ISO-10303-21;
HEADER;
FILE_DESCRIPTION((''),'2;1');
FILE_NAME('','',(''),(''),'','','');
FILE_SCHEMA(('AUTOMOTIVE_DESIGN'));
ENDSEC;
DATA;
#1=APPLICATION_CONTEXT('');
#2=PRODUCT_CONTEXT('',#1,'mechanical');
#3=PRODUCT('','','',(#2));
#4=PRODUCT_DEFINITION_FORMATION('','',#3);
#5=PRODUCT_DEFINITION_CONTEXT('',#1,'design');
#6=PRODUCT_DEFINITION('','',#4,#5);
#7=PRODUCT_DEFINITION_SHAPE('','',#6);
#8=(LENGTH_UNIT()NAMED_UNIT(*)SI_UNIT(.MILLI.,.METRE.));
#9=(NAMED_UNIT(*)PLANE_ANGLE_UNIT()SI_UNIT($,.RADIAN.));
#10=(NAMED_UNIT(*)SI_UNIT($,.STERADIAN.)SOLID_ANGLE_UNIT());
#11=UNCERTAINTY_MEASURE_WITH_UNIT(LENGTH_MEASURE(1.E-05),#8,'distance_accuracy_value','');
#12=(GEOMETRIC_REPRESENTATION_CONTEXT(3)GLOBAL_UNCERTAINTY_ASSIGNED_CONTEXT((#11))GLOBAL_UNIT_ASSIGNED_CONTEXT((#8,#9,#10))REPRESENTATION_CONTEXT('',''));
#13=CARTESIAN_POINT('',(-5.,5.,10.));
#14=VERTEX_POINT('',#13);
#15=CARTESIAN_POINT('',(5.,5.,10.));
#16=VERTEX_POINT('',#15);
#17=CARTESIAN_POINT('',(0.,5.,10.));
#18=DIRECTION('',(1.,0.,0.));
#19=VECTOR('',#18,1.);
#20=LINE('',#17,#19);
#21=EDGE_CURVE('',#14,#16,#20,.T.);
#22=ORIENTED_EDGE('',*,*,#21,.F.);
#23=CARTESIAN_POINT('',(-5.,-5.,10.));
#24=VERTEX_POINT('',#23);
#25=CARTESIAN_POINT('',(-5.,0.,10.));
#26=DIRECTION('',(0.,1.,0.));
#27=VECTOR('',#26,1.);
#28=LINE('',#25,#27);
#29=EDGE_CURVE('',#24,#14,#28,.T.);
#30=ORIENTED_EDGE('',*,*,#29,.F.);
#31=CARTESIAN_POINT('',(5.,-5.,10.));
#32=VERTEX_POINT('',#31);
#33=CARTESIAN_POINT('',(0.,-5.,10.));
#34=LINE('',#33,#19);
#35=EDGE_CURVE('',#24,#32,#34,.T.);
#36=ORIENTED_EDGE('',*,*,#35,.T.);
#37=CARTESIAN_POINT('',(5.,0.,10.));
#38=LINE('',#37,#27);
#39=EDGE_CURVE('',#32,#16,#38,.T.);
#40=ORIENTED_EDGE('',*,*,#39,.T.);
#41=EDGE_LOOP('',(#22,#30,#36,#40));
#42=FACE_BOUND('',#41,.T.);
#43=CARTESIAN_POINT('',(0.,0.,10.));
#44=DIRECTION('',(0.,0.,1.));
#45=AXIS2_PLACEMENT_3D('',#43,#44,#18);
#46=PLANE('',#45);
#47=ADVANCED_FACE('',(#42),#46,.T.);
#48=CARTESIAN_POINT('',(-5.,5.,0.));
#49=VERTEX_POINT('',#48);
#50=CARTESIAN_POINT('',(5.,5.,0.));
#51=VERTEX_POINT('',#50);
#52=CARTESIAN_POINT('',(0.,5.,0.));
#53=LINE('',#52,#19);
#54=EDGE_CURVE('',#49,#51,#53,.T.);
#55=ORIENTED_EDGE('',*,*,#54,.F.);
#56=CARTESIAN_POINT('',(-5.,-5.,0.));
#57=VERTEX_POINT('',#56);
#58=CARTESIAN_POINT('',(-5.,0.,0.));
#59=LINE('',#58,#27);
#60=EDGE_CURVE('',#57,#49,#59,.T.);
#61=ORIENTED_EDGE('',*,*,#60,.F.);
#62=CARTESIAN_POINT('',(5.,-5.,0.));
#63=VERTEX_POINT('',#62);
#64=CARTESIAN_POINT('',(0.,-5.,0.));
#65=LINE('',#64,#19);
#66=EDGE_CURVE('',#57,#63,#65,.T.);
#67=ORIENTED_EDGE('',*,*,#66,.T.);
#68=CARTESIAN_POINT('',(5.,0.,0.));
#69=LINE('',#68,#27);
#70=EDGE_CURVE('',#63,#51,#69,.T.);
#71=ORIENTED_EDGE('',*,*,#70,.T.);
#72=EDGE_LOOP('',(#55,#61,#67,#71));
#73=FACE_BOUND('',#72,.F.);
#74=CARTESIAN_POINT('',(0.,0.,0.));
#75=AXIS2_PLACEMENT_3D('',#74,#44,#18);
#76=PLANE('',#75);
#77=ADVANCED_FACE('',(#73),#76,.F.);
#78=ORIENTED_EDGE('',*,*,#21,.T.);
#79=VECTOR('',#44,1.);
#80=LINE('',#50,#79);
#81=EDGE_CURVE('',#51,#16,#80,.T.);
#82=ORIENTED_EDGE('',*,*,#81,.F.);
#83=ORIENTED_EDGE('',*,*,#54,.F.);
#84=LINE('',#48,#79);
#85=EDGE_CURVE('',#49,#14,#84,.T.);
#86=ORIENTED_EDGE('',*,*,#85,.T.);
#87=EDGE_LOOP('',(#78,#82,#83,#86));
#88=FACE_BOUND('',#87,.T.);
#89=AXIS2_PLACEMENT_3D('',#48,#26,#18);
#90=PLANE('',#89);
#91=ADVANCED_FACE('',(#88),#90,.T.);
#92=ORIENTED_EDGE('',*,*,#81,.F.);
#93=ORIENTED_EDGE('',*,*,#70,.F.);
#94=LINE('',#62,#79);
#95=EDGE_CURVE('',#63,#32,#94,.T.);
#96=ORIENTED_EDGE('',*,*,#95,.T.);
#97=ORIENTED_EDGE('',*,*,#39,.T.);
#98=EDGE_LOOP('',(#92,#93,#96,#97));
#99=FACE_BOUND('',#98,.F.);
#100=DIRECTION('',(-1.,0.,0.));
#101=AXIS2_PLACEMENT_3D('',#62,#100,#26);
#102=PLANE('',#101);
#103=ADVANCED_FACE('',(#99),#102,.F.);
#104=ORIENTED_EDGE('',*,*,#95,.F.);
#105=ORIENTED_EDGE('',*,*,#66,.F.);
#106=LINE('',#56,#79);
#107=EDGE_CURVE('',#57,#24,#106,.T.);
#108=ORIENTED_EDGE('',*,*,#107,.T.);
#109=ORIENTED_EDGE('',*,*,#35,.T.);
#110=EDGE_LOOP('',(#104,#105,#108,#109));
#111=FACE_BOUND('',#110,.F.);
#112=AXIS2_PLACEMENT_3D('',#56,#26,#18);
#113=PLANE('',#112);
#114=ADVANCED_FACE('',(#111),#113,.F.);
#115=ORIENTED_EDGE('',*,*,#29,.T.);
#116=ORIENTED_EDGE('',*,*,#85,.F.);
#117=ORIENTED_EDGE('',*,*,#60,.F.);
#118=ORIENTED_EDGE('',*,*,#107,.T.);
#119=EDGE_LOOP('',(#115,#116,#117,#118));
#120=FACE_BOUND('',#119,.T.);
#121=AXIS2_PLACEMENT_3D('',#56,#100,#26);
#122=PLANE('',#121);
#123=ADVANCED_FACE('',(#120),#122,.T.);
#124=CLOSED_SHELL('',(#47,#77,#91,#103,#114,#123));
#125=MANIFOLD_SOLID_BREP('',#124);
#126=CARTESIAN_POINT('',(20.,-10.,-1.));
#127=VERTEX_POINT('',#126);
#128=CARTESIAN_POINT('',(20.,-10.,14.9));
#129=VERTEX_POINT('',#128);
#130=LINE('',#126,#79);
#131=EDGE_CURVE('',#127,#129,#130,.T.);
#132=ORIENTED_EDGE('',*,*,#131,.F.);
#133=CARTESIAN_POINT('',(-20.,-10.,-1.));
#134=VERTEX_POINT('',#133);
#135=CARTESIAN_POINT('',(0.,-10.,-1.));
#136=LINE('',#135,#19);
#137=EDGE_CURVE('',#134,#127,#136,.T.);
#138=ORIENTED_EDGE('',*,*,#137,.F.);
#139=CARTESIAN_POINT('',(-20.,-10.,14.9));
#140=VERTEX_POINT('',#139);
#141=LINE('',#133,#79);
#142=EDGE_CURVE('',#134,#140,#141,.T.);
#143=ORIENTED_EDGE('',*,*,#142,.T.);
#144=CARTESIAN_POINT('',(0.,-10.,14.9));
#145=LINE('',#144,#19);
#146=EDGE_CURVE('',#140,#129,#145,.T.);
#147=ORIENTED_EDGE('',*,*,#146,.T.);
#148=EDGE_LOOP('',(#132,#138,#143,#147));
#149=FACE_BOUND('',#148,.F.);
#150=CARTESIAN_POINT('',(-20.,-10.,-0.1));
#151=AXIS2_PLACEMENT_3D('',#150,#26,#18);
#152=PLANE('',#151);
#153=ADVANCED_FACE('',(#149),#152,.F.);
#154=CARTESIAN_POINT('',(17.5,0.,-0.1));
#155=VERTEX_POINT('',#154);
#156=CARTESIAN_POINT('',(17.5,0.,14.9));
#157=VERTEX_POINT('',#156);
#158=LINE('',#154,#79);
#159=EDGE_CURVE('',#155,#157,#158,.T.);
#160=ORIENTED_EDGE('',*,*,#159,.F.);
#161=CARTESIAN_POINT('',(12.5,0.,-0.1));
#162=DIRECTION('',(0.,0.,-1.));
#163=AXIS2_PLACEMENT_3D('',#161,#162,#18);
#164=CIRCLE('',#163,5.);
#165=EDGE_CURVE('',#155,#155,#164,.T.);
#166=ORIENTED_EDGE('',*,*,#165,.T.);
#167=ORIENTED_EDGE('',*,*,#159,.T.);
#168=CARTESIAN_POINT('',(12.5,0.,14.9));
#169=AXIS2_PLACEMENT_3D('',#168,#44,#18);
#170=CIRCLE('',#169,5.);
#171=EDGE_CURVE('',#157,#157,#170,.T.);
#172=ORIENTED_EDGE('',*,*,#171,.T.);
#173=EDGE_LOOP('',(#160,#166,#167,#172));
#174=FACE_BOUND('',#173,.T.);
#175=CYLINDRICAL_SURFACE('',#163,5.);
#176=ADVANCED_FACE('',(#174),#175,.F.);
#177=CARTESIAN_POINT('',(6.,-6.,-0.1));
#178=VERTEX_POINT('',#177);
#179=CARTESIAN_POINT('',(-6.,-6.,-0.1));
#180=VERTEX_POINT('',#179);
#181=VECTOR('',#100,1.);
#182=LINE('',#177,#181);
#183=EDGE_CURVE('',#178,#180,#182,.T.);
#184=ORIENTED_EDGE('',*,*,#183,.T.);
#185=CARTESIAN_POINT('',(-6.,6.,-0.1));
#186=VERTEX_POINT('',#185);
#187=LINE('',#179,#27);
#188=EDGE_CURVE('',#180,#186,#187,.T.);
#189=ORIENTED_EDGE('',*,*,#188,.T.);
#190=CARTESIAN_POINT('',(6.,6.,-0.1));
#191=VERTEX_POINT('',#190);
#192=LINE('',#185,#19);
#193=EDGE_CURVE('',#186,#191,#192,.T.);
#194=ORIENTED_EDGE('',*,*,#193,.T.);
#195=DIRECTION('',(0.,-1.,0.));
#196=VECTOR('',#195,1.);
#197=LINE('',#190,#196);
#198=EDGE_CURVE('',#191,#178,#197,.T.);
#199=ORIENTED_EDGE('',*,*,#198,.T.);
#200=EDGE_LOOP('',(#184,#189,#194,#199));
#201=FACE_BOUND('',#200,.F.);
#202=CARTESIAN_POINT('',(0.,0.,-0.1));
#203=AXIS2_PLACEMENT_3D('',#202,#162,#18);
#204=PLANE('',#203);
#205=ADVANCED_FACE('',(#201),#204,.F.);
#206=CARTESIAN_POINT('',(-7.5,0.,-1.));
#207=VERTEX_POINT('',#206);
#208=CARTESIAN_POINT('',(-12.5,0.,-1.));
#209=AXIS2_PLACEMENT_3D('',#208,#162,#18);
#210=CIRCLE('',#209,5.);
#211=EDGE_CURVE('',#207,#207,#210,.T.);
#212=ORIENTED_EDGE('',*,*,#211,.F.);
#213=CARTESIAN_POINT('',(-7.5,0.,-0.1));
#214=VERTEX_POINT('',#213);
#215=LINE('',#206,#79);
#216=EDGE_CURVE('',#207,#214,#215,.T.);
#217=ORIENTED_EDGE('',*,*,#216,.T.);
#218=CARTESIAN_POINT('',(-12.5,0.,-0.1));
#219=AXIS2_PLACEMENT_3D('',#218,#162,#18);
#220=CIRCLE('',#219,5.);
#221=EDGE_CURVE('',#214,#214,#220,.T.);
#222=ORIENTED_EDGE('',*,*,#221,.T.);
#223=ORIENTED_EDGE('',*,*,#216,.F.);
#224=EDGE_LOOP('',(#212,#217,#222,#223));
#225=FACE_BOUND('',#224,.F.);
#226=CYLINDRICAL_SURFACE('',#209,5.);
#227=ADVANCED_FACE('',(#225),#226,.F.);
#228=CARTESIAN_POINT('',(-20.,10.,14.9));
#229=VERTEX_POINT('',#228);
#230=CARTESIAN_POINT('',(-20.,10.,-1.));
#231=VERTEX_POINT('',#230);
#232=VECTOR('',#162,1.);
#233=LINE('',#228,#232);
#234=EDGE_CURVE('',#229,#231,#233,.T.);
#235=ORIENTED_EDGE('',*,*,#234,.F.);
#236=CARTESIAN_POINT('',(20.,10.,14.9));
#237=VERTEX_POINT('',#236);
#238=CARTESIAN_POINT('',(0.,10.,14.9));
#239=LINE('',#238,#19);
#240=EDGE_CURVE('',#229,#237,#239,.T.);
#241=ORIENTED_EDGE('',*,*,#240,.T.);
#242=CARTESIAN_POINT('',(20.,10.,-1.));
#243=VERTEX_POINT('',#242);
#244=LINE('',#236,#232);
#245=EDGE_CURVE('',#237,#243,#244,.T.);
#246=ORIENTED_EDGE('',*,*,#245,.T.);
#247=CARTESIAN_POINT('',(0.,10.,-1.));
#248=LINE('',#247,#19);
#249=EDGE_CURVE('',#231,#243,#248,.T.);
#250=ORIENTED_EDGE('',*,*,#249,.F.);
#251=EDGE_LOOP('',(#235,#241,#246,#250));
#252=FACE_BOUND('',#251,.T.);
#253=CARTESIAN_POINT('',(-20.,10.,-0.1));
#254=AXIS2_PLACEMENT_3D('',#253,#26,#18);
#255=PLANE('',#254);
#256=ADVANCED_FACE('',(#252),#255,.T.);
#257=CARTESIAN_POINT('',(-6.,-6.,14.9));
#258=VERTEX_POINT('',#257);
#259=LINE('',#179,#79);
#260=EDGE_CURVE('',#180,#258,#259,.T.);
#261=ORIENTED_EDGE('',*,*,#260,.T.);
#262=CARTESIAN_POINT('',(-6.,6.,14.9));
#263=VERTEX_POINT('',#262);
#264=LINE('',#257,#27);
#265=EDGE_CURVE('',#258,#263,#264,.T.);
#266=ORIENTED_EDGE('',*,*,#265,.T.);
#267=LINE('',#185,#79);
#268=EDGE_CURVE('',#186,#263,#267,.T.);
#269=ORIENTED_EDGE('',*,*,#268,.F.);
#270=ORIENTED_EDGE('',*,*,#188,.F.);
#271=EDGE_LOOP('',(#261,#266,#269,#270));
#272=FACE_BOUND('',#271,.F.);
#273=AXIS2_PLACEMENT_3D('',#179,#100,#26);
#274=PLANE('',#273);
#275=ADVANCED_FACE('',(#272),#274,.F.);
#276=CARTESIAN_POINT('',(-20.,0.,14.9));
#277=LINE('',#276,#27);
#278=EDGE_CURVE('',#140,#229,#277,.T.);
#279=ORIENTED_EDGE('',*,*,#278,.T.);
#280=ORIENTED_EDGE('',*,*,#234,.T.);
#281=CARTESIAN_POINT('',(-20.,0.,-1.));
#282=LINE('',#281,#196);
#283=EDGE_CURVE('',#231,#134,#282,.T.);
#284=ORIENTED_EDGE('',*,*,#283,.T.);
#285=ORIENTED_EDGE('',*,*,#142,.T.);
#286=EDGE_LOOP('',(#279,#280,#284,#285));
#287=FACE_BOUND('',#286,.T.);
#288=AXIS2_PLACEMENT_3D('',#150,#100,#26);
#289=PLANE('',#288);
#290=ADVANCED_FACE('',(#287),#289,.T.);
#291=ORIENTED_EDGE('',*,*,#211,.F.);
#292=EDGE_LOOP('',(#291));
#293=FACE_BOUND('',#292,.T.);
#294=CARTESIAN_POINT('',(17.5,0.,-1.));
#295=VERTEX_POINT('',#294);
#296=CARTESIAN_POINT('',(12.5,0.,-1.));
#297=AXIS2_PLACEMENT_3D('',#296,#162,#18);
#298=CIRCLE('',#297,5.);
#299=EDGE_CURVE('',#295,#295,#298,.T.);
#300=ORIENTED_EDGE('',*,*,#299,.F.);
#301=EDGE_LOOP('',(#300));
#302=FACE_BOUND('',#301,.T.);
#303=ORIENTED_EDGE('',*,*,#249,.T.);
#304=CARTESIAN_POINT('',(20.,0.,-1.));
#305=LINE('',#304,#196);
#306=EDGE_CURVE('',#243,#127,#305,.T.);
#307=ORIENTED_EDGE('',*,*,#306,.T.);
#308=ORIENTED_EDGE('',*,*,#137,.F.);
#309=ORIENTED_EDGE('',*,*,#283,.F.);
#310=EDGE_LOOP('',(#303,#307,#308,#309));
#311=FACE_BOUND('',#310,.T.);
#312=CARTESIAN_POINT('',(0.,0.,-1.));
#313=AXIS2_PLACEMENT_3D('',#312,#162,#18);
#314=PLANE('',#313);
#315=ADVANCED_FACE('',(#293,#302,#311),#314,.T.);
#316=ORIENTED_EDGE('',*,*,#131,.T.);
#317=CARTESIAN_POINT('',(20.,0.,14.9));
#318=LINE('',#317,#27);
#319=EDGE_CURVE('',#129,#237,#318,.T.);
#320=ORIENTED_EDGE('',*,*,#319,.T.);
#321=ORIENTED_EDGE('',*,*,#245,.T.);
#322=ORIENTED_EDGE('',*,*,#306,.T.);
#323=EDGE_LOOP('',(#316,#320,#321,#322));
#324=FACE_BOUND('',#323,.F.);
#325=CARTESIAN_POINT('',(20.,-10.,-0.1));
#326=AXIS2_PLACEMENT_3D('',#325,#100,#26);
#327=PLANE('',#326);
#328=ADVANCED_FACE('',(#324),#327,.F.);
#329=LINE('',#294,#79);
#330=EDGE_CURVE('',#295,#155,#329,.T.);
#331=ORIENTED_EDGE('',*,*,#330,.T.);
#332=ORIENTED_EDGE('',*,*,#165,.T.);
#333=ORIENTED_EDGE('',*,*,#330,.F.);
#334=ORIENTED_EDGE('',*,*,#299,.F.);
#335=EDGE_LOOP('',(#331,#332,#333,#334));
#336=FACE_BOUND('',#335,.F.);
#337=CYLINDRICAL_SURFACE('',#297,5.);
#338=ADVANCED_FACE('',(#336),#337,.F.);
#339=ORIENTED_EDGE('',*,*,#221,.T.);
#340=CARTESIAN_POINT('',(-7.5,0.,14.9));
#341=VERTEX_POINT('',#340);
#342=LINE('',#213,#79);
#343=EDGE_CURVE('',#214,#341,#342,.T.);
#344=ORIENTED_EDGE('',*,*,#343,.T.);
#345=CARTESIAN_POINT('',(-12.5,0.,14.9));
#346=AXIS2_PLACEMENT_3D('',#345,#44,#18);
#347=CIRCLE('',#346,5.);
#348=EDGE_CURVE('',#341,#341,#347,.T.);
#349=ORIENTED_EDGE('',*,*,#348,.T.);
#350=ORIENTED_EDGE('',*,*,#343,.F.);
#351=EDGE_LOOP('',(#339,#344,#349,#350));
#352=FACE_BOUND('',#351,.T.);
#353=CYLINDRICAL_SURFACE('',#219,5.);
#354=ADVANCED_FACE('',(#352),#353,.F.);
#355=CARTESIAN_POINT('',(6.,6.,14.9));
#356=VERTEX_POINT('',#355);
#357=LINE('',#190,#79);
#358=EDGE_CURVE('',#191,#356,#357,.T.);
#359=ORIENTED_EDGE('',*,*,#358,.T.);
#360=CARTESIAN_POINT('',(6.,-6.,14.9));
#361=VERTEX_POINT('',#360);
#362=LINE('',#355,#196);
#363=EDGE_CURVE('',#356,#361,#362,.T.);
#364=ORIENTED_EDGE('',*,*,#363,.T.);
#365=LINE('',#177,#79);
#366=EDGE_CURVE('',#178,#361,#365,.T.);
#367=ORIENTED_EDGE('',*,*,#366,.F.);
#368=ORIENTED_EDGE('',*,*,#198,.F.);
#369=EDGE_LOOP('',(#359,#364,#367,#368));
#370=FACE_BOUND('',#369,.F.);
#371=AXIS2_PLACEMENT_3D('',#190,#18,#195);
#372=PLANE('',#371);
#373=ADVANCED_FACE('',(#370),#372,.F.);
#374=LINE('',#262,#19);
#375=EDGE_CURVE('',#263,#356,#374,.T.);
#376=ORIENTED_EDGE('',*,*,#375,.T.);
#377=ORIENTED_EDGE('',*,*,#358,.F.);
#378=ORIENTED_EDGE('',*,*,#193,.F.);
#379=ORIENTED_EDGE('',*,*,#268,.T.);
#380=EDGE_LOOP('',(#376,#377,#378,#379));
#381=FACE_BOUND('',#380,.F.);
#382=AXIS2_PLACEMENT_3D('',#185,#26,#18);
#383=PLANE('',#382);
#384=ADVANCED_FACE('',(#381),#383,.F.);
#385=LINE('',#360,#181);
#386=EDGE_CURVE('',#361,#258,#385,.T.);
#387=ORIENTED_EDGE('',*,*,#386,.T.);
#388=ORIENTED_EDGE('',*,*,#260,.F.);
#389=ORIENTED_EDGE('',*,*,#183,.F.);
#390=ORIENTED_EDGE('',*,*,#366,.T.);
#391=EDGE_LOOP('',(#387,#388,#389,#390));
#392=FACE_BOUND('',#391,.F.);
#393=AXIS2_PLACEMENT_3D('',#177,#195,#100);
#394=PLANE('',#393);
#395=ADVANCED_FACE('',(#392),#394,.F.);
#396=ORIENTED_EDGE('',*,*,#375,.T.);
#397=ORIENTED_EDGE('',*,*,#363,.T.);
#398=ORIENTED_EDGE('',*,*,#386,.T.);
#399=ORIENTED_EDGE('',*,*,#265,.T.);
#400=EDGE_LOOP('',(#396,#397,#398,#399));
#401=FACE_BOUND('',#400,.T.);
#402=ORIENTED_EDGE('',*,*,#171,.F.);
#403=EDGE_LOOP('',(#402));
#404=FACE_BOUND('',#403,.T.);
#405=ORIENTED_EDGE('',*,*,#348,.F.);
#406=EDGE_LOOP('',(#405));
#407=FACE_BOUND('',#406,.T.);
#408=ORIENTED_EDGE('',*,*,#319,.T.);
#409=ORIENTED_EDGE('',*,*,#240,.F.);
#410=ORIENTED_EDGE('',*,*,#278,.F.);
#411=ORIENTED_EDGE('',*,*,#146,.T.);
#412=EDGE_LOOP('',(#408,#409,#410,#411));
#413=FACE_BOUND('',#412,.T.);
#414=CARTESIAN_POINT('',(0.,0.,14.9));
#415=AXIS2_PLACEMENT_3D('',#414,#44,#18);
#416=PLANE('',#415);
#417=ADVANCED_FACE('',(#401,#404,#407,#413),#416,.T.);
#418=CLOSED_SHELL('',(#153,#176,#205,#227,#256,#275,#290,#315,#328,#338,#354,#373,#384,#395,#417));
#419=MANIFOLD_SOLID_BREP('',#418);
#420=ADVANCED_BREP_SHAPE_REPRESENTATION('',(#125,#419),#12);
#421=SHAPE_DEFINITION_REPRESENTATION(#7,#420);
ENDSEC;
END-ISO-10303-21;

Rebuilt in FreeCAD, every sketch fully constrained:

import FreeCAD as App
import Part
import Sketcher
from FreeCAD import Vector
Q = App.Units.Quantity


def add_polygon(sketch, points):
    """Adds a closed chain of lines whose ends are joined by coincident constraints."""
    first, n = sketch.GeometryCount, len(points)
    for a, b in zip(points, points[1:] + points[:1]):
        sketch.addGeometry(Part.LineSegment(App.Vector(*a, 0), App.Vector(*b, 0)), False)
    for i in range(n):
        sketch.addConstraint(Sketcher.Constraint("Coincident", first + i, 2, first + (i + 1) % n, 1))

doc = App.newDocument("Part")
body = doc.addObject("PartDesign::Body", "Body")

# Sketch on XY plane
sketch1 = body.newObject("Sketcher::SketchObject", "Sketch")
sketch1.AttachmentSupport = (doc.getObject("XY_Plane"), [""])
sketch1.MapMode = "FlatFace"
add_polygon(sketch1, [(-5, 5), (-5, -5), (5, -5), (5, 5)])  # lines 0-3
sketch1.addConstraint([
    Sketcher.Constraint("Vertical", 0),
    Sketcher.Constraint("Horizontal", 1),
    Sketcher.Constraint("Vertical", 2),
    Sketcher.Constraint("Horizontal", 3),
    Sketcher.Constraint("Symmetric", 0, 2, 2, 2, -1, 1),
    Sketcher.Constraint("Equal", 3, 0),
    Sketcher.Constraint("DistanceX", 1, 1, 1, 2, Q("10 mm")),
])
pad1 = body.newObject("PartDesign::Pad", "Pad")
pad1.Profile = sketch1
pad1.Length = 10
body2 = doc.addObject("PartDesign::Body", "Body001")

# Sketch on XY plane
sketch2 = body2.newObject("Sketcher::SketchObject", "Sketch001")
sketch2.AttachmentSupport = (doc.getObject("XY_Plane001"), [""])
sketch2.MapMode = "FlatFace"
sketch2.AttachmentOffset = App.Placement(Vector(0, 0, -1), App.Rotation())
add_polygon(sketch2, [(-20, -10), (-20, 10), (20, 10), (20, -10)])  # lines 0-3
sketch2.addGeometry(Part.Circle(Vector(-12, 0, 0), Vector(0, 0, 1), 5), False)  # 4
sketch2.addGeometry(Part.Circle(Vector(12, 0, 0), Vector(0, 0, 1), 5), False)  # 5
sketch2.addConstraint([
    Sketcher.Constraint("Vertical", 0),
    Sketcher.Constraint("Horizontal", 1),
    Sketcher.Constraint("Vertical", 2),
    Sketcher.Constraint("Horizontal", 3),
    Sketcher.Constraint("Equal", 4, 5),
    Sketcher.Constraint("Symmetric", 4, 3, 5, 3, -1, 1),
    Sketcher.Constraint("Symmetric", 0, 2, 2, 2, -1, 1),
    Sketcher.Constraint("PointOnObject", 4, 3, -1),
    Sketcher.Constraint("Diameter", 4, Q("10 mm")),
    Sketcher.Constraint("DistanceX", 1, 1, 1, 2, Q("40 mm")),
    Sketcher.Constraint("DistanceY", 0, 1, 0, 2, Q("20 mm")),
    Sketcher.Constraint("DistanceX", 4, 3, 5, 3, Q("25 mm")),
])
pad2 = body2.newObject("PartDesign::Pad", "Pad001")
pad2.Profile = sketch2
pad2.Length = 0.9

# Sketch on XY plane
sketch3 = body2.newObject("Sketcher::SketchObject", "Sketch002")
sketch3.AttachmentSupport = (doc.getObject("XY_Plane001"), [""])
sketch3.MapMode = "FlatFace"
sketch3.AttachmentOffset = App.Placement(Vector(0, 0, -0.1), App.Rotation())
add_polygon(sketch3, [(-20, 10), (-20, -10), (20, -10), (20, 10)])  # lines 0-3
sketch3.addGeometry(Part.Circle(Vector(-12, 0, 0), Vector(0, 0, 1), 5), False)  # 4
add_polygon(sketch3, [(-6, 6), (6, 6), (6, -6), (-6, -6)])  # lines 5-8
sketch3.addGeometry(Part.Circle(Vector(12, 0, 0), Vector(0, 0, 1), 5), False)  # 9
sketch3.addConstraint([
    Sketcher.Constraint("Vertical", 0),
    Sketcher.Constraint("Horizontal", 1),
    Sketcher.Constraint("Vertical", 2),
    Sketcher.Constraint("Horizontal", 3),
    Sketcher.Constraint("Horizontal", 5),
    Sketcher.Constraint("Vertical", 6),
    Sketcher.Constraint("Horizontal", 7),
    Sketcher.Constraint("Vertical", 8),
    Sketcher.Constraint("Equal", 4, 9),
    Sketcher.Constraint("Symmetric", 4, 3, 9, 3, -1, 1),
    Sketcher.Constraint("Symmetric", 0, 2, 2, 2, -1, 1),
    Sketcher.Constraint("Symmetric", 5, 2, 7, 2, -1, 1),
    Sketcher.Constraint("PointOnObject", 4, 3, -1),
    Sketcher.Constraint("Equal", 7, 6),
    Sketcher.Constraint("Diameter", 4, Q("10 mm")),
    Sketcher.Constraint("DistanceX", 1, 1, 1, 2, Q("40 mm")),
    Sketcher.Constraint("DistanceX", 5, 1, 5, 2, Q("12 mm")),
    Sketcher.Constraint("DistanceY", 0, 2, 0, 1, Q("20 mm")),
    Sketcher.Constraint("DistanceX", 4, 3, 9, 3, Q("25 mm")),
])
pad3 = body2.newObject("PartDesign::Pad", "Pad002")
pad3.Profile = sketch3
pad3.Length = 15

doc.recompute()
